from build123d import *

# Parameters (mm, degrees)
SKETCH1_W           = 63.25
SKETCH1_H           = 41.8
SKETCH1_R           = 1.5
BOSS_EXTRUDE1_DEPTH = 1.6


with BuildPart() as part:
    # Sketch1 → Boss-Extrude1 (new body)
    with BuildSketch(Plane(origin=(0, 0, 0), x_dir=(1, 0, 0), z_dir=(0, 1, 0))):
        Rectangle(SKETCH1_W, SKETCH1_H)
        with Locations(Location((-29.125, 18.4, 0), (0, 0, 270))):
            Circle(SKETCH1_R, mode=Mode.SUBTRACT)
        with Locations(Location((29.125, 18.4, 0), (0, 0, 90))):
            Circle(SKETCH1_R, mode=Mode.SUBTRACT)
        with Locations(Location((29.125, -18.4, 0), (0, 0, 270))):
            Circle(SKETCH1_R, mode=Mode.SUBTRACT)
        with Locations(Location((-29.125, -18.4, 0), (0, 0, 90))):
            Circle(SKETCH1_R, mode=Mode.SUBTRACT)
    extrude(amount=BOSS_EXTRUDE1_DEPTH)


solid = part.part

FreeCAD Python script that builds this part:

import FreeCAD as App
import Part
import Sketcher
Q = App.Units.Quantity


def add_polygon(sketch, points):
    """Adds a closed chain of lines whose ends are joined by coincident constraints."""
    first, n = sketch.GeometryCount, len(points)
    for a, b in zip(points, points[1:] + points[:1]):
        sketch.addGeometry(Part.LineSegment(App.Vector(*a, 0), App.Vector(*b, 0)), False)
    for i in range(n):
        sketch.addConstraint(Sketcher.Constraint("Coincident", first + i, 2, first + (i + 1) % n, 1))

doc = App.newDocument("Part")
body = doc.addObject("PartDesign::Body", "Body")

# Sketch on XZ plane
sketch1 = body.newObject("Sketcher::SketchObject", "Sketch")
sketch1.AttachmentSupport = (doc.getObject("XZ_Plane"), [""])
sketch1.MapMode = "FlatFace"
add_polygon(sketch1, [(-31.625, -20.9), (-31.625, 20.9), (31.625, 20.9), (31.625, -20.9)])  # lines 0-3
sketch1.addGeometry(Part.Circle(App.Vector(-29.125, 18.4, 0), App.Vector(0, 0, 1), 1.5), False)  # 4
sketch1.addGeometry(Part.Circle(App.Vector(29.125, 18.4, 0), App.Vector(0, 0, 1), 1.5), False)  # 5
sketch1.addGeometry(Part.Circle(App.Vector(-29.125, -18.4, 0), App.Vector(0, 0, 1), 1.5), False)  # 6
sketch1.addGeometry(Part.Circle(App.Vector(29.125, -18.4, 0), App.Vector(0, 0, 1), 1.5), False)  # 7
sketch1.addConstraint([
    Sketcher.Constraint("Vertical", 0),
    Sketcher.Constraint("Horizontal", 1),
    Sketcher.Constraint("Vertical", 2),
    Sketcher.Constraint("Horizontal", 3),
    Sketcher.Constraint("Equal", 4, 5),
    Sketcher.Constraint("Equal", 5, 6),
    Sketcher.Constraint("Equal", 6, 7),
    Sketcher.Constraint("Symmetric", 5, 3, 6, 3, -1, 1),
    Sketcher.Constraint("Symmetric", 4, 3, 7, 3, -1, 1),
    Sketcher.Constraint("Symmetric", 0, 2, 2, 2, -1, 1),
    Sketcher.Constraint("Symmetric", 4, 3, 5, 3, -2),
    Sketcher.Constraint("Diameter", 4, Q("3 mm")),
    Sketcher.Constraint("DistanceY", 0, 1, 0, 2, Q("41.8 mm")),
    Sketcher.Constraint("DistanceX", 1, 1, 1, 2, Q("63.25 mm")),
    Sketcher.Constraint("DistanceY", -1, 1, 4, 3, Q("18.4 mm")),
    Sketcher.Constraint("DistanceX", 0, 2, 4, 3, Q("2.5 mm")),
])
pad1 = body.newObject("PartDesign::Pad", "Pad")
pad1.Profile = sketch1
pad1.Length = 1.6
pad1.Reversed = True

doc.recompute()
